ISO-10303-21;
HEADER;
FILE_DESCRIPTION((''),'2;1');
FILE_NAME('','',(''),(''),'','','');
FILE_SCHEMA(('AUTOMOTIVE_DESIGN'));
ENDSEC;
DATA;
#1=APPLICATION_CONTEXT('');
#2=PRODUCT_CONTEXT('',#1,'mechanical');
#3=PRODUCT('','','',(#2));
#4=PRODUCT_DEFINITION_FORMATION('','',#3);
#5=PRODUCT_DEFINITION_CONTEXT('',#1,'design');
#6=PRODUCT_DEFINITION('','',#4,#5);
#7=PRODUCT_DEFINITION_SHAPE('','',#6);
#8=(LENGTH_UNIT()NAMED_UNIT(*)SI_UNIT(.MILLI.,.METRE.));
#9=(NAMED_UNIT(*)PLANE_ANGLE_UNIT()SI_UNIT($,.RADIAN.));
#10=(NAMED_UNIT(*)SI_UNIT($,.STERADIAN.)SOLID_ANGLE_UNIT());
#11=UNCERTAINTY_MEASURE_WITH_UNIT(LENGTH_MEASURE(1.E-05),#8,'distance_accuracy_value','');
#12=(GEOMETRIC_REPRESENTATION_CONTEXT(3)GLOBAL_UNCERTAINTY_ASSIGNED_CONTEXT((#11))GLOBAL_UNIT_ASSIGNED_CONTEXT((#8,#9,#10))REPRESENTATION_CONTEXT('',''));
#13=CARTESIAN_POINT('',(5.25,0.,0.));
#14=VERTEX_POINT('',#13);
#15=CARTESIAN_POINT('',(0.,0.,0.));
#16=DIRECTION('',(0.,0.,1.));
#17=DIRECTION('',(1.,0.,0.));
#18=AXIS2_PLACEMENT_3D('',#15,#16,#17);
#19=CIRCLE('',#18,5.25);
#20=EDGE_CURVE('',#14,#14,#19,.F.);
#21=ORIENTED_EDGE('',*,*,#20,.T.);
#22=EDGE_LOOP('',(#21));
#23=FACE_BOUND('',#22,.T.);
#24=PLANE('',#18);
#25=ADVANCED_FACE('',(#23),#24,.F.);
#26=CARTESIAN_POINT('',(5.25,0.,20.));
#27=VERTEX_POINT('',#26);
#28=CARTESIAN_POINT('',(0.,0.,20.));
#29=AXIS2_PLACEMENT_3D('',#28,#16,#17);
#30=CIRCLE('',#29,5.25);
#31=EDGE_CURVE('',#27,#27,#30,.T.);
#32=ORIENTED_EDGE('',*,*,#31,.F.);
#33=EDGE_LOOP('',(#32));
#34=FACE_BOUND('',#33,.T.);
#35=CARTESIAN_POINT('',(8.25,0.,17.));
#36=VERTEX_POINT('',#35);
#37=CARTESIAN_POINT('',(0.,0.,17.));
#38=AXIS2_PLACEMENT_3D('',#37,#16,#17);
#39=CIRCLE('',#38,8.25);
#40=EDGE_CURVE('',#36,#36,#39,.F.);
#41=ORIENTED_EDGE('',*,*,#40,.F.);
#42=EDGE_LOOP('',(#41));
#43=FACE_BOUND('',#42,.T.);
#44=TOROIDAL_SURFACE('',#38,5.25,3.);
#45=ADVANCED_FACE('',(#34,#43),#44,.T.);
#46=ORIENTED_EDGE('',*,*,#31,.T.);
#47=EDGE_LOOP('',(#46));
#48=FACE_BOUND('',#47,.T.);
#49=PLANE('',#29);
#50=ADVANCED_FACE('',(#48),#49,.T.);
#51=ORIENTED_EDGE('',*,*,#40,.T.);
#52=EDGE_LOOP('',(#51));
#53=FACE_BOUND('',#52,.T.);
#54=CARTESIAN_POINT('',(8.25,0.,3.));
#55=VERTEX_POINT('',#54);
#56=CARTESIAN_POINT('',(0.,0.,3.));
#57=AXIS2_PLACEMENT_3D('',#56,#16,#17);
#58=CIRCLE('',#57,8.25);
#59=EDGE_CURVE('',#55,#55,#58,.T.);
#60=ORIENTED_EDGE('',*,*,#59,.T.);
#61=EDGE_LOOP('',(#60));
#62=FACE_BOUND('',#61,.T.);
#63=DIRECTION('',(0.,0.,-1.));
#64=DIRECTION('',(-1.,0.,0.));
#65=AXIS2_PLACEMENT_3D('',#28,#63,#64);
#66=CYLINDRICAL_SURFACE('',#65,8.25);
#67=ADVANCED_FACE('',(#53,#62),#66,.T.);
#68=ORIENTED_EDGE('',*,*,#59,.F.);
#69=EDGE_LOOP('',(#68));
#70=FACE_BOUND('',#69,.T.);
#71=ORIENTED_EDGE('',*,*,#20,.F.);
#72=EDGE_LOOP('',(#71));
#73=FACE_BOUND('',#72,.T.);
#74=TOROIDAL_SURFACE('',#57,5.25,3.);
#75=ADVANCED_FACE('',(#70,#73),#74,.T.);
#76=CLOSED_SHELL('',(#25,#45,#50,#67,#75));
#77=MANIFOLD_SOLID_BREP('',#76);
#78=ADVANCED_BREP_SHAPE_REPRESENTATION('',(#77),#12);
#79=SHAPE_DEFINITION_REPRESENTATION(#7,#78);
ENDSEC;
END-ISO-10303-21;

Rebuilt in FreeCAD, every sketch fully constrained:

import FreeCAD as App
import Part
import Sketcher
from FreeCAD import Vector


def edges_at(feature, points):
    """Names of the edges that pass closest to the given points."""
    edges = feature.Shape.Edges
    near = lambda p: min(range(len(edges)), key=lambda i: edges[i].distToShape(Part.Vertex(*p))[0])
    return sorted({f"Edge{near(p) + 1}" for p in points})

doc = App.newDocument("Part")
params = doc.addObject("Spreadsheet::Sheet", "Params")
for row, (alias, value) in enumerate([
    ("sketch1_diameter", "16.5 mm"),
    ("pad1_length", "20 mm"),
    ("fillet_radius", "3 mm"),
], start=1):
    params.set(f"A{row}", alias)
    params.set(f"B{row}", "=" + value)
    params.setAlias(f"B{row}", alias)

body = doc.addObject("PartDesign::Body", "Body")

# Sketch on XY plane
sketch1 = body.newObject("Sketcher::SketchObject", "Sketch")
sketch1.AttachmentSupport = (doc.getObject("XY_Plane"), [""])
sketch1.MapMode = "FlatFace"
sketch1.addGeometry(Part.Circle(Vector(0, 0, 0), Vector(0, 0, 1), 8.25), False)
sketch1.addConstraint(Sketcher.Constraint("Coincident", 0, 3, -1, 1))
sketch1.addConstraint(Sketcher.Constraint("Diameter", 0, 16.5))
sketch1.setExpression("Constraints[1]", "Params.sketch1_diameter")
pad1 = body.newObject("PartDesign::Pad", "Pad")
pad1.Profile = sketch1
pad1.setExpression("Length", "Params.pad1_length")
doc.recompute()

fillet = body.newObject("PartDesign::Fillet", "Fillet")
fillet.Base = (pad1, edges_at(pad1, [(-8.25, 0, 0), (-8.25, 0, 20)]))
fillet.setExpression("Radius", "Params.fillet_radius")

doc.recompute()
